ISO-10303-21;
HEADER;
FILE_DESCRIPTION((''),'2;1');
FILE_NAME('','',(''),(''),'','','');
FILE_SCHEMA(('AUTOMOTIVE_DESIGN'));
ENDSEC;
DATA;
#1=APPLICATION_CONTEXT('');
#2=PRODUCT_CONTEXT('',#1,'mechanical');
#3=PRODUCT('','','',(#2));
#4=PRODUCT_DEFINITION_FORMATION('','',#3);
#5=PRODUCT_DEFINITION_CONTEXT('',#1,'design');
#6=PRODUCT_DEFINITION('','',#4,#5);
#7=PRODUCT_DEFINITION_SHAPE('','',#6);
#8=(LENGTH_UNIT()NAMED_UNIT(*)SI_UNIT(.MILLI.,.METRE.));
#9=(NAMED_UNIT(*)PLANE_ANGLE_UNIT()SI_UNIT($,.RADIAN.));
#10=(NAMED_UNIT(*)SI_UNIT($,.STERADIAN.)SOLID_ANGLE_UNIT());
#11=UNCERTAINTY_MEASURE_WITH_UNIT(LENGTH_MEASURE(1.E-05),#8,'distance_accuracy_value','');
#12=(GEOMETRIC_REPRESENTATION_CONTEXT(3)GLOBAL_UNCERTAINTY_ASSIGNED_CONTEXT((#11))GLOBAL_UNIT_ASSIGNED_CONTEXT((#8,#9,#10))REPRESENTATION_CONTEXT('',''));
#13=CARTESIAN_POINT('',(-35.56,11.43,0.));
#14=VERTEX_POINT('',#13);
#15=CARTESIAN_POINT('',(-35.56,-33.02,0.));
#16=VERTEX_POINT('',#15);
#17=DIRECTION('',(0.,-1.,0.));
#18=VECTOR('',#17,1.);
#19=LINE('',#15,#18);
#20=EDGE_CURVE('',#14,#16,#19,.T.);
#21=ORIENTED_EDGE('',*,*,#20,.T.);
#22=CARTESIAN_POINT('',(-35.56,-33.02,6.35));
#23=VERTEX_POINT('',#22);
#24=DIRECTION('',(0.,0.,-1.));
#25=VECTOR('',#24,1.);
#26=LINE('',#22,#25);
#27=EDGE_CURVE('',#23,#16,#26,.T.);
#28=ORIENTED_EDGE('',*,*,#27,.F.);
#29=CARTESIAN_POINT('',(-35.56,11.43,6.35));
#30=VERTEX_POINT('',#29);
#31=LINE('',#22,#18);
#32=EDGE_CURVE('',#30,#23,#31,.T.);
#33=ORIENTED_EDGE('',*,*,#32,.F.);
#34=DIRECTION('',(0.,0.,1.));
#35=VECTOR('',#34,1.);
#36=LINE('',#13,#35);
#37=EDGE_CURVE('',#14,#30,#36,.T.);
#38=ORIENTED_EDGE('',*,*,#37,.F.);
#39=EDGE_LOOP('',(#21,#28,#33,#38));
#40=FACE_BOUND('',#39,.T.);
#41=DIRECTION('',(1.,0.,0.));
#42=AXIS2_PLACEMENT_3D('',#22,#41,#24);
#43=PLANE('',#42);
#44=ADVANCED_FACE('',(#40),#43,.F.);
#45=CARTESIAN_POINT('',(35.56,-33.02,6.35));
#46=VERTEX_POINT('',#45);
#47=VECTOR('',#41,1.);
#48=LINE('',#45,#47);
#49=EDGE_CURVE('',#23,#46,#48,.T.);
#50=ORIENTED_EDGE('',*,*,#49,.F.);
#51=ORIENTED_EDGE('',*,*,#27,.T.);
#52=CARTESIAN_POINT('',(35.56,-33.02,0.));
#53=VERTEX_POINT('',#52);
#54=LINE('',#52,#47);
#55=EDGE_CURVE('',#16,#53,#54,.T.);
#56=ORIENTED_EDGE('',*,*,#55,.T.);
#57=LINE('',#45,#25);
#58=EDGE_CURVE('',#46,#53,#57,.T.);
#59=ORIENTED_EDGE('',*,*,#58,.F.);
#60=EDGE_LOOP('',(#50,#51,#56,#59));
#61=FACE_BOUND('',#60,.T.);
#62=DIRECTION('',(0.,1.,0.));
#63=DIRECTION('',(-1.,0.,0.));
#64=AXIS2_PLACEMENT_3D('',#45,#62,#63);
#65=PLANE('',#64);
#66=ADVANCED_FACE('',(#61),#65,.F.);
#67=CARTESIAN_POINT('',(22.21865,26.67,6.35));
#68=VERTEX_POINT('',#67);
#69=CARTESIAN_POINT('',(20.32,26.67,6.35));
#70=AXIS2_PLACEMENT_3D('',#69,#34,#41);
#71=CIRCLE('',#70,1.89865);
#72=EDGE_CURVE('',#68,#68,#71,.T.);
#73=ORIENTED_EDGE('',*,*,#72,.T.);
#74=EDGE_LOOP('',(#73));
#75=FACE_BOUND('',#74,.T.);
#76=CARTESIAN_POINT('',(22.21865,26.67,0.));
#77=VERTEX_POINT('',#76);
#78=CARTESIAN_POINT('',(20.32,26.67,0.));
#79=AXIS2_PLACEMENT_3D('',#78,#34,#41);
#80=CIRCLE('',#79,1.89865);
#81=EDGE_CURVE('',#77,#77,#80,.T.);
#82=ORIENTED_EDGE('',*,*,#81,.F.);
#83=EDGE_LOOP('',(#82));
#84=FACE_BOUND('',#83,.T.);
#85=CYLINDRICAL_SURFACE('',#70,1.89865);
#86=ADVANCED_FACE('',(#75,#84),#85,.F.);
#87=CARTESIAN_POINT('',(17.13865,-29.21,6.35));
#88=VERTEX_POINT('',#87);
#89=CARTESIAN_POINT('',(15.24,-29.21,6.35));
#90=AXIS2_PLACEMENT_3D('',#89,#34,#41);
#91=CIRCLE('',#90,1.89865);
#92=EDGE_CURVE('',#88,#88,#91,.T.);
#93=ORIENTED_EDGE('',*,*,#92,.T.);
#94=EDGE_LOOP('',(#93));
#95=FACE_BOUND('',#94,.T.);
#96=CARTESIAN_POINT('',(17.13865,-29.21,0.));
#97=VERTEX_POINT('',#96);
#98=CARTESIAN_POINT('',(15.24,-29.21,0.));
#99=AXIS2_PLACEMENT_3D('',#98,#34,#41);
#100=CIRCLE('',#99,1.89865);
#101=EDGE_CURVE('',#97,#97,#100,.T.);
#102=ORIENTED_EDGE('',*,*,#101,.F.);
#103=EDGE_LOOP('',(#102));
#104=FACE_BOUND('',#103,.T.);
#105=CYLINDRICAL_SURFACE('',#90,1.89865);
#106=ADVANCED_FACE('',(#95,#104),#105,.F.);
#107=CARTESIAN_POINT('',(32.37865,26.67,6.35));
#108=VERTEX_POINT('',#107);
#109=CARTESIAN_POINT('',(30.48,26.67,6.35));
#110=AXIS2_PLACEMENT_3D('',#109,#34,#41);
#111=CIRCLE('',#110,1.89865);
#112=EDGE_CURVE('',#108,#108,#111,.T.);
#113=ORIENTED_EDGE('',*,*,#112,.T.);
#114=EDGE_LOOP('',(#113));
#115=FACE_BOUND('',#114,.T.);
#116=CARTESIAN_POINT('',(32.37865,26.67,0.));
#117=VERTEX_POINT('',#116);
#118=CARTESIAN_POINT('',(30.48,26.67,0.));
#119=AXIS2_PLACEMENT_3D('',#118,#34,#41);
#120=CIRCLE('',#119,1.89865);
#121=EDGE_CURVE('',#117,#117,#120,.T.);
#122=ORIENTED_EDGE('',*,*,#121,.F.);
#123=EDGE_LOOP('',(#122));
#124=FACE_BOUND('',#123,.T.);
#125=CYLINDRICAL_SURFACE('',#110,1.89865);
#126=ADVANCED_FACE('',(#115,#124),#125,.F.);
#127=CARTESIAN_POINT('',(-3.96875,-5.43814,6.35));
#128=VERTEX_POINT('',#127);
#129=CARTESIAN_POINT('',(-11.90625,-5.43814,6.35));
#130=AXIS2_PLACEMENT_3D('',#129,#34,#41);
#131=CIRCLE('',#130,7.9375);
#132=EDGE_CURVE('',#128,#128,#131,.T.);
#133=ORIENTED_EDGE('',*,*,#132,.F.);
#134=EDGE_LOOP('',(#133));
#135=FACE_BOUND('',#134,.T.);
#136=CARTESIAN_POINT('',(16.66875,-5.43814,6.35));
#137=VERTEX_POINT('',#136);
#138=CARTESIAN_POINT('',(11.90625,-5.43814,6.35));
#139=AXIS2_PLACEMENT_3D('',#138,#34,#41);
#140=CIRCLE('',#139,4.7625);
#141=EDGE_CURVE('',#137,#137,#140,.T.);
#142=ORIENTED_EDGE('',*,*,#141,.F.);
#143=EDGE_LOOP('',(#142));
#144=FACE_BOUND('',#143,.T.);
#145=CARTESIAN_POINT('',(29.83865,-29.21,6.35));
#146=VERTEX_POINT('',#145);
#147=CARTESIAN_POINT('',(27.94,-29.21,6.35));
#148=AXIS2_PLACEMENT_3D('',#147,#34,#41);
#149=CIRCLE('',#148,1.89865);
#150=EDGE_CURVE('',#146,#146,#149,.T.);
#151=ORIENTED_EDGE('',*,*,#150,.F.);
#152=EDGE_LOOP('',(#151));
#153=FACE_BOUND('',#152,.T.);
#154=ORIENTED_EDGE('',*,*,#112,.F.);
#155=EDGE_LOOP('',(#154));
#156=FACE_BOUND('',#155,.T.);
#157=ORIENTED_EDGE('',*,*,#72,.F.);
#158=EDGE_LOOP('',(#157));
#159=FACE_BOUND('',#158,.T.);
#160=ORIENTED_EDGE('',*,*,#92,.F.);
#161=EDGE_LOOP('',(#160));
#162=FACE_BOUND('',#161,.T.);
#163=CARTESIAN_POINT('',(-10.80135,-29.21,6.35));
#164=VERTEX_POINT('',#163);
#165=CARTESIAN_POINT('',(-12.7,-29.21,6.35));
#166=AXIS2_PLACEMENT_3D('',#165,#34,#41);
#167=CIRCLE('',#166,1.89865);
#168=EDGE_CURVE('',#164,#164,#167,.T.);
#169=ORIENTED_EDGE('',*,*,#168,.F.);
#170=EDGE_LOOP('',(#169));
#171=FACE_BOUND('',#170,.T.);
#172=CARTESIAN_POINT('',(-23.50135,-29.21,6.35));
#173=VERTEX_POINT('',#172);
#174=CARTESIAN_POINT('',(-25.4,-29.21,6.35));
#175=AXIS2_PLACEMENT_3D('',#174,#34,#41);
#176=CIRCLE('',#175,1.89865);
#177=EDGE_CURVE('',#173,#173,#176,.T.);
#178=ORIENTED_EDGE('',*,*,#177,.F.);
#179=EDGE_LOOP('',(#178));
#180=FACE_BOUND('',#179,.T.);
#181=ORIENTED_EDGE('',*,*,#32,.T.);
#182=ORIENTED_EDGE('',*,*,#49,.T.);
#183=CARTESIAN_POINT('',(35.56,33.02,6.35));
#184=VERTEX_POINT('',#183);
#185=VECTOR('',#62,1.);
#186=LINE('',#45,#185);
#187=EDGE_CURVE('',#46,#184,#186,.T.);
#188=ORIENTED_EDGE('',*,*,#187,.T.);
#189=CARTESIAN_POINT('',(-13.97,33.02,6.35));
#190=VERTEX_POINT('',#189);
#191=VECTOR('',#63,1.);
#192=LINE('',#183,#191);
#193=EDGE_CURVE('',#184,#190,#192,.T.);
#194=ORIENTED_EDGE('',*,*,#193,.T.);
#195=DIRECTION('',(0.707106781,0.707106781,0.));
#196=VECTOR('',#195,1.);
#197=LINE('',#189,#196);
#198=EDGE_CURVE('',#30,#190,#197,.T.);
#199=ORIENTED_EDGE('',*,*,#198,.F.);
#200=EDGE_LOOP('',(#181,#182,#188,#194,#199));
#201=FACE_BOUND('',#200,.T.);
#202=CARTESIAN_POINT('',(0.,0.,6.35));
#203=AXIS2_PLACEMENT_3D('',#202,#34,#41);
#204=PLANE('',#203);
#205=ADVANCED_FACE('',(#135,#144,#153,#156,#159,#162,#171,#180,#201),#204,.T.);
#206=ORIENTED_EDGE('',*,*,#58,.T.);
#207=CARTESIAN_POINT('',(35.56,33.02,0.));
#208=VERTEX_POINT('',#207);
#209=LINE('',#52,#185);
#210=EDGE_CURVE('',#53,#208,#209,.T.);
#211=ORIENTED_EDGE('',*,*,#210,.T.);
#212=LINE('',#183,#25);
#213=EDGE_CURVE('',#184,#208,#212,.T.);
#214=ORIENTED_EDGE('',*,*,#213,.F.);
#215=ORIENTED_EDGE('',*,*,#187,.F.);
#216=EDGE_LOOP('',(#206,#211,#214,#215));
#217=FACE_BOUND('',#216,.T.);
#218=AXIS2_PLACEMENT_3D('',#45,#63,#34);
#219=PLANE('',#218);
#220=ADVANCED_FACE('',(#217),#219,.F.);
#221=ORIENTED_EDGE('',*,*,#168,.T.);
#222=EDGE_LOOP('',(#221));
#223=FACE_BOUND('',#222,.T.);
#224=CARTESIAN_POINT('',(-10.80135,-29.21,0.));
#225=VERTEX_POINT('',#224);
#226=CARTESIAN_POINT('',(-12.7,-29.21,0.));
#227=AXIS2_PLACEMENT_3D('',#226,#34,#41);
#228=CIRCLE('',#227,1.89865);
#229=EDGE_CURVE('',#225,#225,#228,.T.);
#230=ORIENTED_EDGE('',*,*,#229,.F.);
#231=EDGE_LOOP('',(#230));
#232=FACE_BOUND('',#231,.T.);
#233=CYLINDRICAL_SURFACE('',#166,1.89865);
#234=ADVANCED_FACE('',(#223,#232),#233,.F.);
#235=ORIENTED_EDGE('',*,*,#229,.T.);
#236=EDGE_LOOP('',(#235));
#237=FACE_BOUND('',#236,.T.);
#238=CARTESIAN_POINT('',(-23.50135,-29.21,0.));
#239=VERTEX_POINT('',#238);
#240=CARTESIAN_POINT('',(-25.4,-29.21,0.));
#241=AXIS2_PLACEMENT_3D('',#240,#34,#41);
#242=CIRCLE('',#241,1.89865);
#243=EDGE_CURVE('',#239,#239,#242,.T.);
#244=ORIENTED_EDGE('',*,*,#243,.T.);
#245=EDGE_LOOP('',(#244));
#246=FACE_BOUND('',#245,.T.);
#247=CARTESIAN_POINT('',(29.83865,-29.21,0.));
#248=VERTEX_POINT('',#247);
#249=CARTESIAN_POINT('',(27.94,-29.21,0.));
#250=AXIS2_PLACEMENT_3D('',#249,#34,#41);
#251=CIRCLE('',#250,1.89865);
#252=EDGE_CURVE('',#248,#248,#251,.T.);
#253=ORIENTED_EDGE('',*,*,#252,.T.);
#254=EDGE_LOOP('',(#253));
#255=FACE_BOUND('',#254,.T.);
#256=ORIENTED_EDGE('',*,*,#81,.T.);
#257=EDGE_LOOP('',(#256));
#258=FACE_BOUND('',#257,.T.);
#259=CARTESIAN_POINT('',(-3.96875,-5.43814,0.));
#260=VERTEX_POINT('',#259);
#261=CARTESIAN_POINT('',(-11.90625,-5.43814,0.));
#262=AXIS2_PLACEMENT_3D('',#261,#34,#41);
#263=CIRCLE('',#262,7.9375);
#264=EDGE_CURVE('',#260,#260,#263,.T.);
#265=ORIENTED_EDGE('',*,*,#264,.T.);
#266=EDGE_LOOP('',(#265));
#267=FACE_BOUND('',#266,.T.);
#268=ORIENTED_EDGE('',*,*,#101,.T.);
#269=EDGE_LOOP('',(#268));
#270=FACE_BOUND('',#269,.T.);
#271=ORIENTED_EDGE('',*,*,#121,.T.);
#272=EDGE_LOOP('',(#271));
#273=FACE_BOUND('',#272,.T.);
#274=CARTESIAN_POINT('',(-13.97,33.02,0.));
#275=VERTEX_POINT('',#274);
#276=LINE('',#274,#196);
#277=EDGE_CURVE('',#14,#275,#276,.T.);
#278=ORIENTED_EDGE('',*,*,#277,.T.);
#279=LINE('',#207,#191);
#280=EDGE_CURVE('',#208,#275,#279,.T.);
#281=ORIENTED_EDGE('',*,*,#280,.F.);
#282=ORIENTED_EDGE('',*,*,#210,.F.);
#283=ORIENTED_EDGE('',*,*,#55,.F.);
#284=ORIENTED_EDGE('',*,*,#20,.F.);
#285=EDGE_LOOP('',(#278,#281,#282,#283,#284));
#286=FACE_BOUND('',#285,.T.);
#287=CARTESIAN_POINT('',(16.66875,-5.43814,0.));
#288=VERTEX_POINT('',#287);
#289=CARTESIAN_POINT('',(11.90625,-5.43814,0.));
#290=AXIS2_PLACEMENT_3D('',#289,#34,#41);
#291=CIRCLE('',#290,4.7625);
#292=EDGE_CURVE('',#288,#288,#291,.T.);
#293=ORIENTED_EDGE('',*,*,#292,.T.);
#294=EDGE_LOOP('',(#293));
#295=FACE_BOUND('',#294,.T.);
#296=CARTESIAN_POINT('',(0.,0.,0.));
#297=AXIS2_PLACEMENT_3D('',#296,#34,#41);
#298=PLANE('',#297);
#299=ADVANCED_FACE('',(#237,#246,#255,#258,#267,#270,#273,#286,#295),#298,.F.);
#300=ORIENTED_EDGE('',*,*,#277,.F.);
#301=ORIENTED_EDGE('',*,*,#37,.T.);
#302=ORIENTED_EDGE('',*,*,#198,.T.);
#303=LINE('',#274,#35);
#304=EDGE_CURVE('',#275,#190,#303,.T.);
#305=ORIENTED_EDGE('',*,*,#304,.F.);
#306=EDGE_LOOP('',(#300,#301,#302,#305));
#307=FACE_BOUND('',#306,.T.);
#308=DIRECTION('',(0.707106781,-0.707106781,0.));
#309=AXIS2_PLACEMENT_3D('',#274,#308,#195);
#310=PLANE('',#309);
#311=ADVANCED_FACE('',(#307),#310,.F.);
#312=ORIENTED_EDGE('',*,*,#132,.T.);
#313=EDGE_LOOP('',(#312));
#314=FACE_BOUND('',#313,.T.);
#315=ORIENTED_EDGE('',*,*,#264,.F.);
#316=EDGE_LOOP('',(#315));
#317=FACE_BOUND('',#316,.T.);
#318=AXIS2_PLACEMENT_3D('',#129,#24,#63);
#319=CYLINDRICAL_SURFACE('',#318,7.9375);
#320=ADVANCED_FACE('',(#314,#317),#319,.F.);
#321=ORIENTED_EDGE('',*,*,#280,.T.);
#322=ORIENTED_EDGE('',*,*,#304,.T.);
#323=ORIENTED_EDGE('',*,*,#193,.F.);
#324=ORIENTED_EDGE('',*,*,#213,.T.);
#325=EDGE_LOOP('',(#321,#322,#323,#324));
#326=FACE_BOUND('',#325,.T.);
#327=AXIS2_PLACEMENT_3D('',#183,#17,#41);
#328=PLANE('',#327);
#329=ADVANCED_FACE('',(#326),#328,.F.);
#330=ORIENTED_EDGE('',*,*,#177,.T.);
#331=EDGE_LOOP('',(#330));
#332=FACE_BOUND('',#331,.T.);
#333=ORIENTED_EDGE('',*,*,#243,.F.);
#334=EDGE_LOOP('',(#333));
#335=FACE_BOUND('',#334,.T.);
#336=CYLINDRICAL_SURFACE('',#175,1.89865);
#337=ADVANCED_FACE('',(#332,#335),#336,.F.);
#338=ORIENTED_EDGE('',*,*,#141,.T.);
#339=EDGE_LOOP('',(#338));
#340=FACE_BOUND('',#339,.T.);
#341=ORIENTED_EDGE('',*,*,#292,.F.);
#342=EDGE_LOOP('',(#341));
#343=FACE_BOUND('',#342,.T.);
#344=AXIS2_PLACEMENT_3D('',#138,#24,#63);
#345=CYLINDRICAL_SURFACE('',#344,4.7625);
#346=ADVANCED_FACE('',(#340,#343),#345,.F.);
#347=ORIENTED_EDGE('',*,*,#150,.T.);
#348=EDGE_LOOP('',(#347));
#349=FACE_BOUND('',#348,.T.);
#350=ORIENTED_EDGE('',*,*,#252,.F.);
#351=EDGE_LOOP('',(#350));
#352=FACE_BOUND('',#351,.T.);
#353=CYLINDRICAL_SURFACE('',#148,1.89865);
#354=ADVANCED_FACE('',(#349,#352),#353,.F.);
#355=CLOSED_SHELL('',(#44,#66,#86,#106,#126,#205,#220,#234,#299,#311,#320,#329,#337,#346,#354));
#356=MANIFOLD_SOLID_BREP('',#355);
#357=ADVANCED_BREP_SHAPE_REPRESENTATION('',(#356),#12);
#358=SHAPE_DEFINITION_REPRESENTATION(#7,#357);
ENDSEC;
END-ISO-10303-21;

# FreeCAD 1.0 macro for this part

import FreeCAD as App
import Part
import Sketcher
Q = App.Units.Quantity

doc = App.newDocument("Part")
params = doc.addObject("Spreadsheet::Sheet", "Params")
for row, (alias, value) in enumerate([
    ("sketch1_diameter", "0.625 in"),
    ("sketch1_diameter2", "0.375 in"),
    ("sketch1_width", "2.8 in"),
    ("sketch1_height", "2.6 in"),
    ("pad1_length", "0.25 in"),
    ("hole_diameter", "0.1495 in"),
    ("sketch3_width", "0.85 in"),
    ("hole2_diameter", "0.1495 in"),
], start=1):
    params.set(f"A{row}", alias)
    params.set(f"B{row}", "=" + value)
    params.setAlias(f"B{row}", alias)

body = doc.addObject("PartDesign::Body", "Body")

# Sketch on XY plane
sketch1 = body.newObject("Sketcher::SketchObject", "Sketch")
sketch1.AttachmentSupport = (doc.getObject("XY_Plane"), [""])
sketch1.MapMode = "FlatFace"
sketch1.addGeometry(Part.LineSegment(App.Vector(-35.6, 33, 0), App.Vector(-35.6, -33, 0)), False)
sketch1.addGeometry(Part.LineSegment(App.Vector(-35.6, -33, 0), App.Vector(35.6, -33, 0)), False)
sketch1.addGeometry(Part.LineSegment(App.Vector(35.6, -33, 0), App.Vector(35.6, 33, 0)), False)
sketch1.addGeometry(Part.LineSegment(App.Vector(35.6, 33, 0), App.Vector(-35.6, 33, 0)), False)
sketch1.addGeometry(Part.Circle(App.Vector(-11.9, -5.4, 0), App.Vector(0, 0, 1), 7.9), False)
sketch1.addGeometry(Part.Circle(App.Vector(11.9, -5.4, 0), App.Vector(0, 0, 1), 4.8), False)
sketch1.addConstraint(Sketcher.Constraint("Coincident", 0, 2, 1, 1))
sketch1.addConstraint(Sketcher.Constraint("Coincident", 1, 2, 2, 1))
sketch1.addConstraint(Sketcher.Constraint("Coincident", 2, 2, 3, 1))
sketch1.addConstraint(Sketcher.Constraint("Coincident", 3, 2, 0, 1))
sketch1.addConstraint(Sketcher.Constraint("Vertical", 0))
sketch1.addConstraint(Sketcher.Constraint("Horizontal", 1))
sketch1.addConstraint(Sketcher.Constraint("Vertical", 2))
sketch1.addConstraint(Sketcher.Constraint("Horizontal", 3))
sketch1.addConstraint(Sketcher.Constraint("Symmetric", 0, 2, 2, 2, -1, 1))
sketch1.addConstraint(Sketcher.Constraint("Symmetric", 4, 3, 5, 3, -2))
sketch1.addConstraint(Sketcher.Constraint("Diameter", 4, Q("0.625 in")))
sketch1.addConstraint(Sketcher.Constraint("Diameter", 5, Q("0.375 in")))
sketch1.addConstraint(Sketcher.Constraint("DistanceX", 1, 1, 1, 2, Q("2.8 in")))
sketch1.addConstraint(Sketcher.Constraint("DistanceY", 0, 2, 0, 1, Q("2.6 in")))
sketch1.addConstraint(Sketcher.Constraint("DistanceX", 4, 3, -1, 1, Q("0.46875 in")))
sketch1.addConstraint(Sketcher.Constraint("DistanceY", 4, 3, -1, 1, Q("0.2141 in")))
sketch1.setExpression("Constraints[10]", "Params.sketch1_diameter")
sketch1.setExpression("Constraints[11]", "Params.sketch1_diameter2")
sketch1.setExpression("Constraints[12]", "Params.sketch1_width")
sketch1.setExpression("Constraints[13]", "Params.sketch1_height")
pad1 = body.newObject("PartDesign::Pad", "Pad")
pad1.Profile = sketch1
pad1.setExpression("Length", "Params.pad1_length")

# Sketch on XY plane
sketch2 = body.newObject("Sketcher::SketchObject", "Sketch001")
sketch2.AttachmentSupport = (doc.getObject("XY_Plane"), [""])
sketch2.MapMode = "FlatFace"
sketch2.AttachmentOffset = App.Placement(App.Vector(0, 0, 0.25 * 25.4), App.Rotation())
sketch2.addGeometry(Part.Circle(App.Vector(-25.4, -29.2, 0), App.Vector(0, 0, 1), 1.9), False)
sketch2.addGeometry(Part.Circle(App.Vector(-12.7, -29.2, 0), App.Vector(0, 0, 1), 1.9), False)
sketch2.addGeometry(Part.Circle(App.Vector(15.2, -29.2, 0), App.Vector(0, 0, 1), 1.9), False)
sketch2.addGeometry(Part.Circle(App.Vector(27.9, -29.2, 0), App.Vector(0, 0, 1), 1.9), False)
sketch2.addConstraint(Sketcher.Constraint("Equal", 0, 1))
sketch2.addConstraint(Sketcher.Constraint("Equal", 1, 2))
sketch2.addConstraint(Sketcher.Constraint("Equal", 2, 3))
sketch2.addConstraint(Sketcher.Constraint("Horizontal", 0, 3, 1, 3))
sketch2.addConstraint(Sketcher.Constraint("Horizontal", 1, 3, 2, 3))
sketch2.addConstraint(Sketcher.Constraint("Horizontal", 2, 3, 3, 3))
sketch2.addConstraint(Sketcher.Constraint("DistanceX", 0, 3, -1, 1, Q("1 in")))
sketch2.addConstraint(Sketcher.Constraint("Diameter", 0, Q("0.1495 in")))
sketch2.addConstraint(Sketcher.Constraint("DistanceX", 1, 3, -1, 1, Q("0.5 in")))
sketch2.addConstraint(Sketcher.Constraint("DistanceX", -1, 1, 2, 3, Q("0.6 in")))
sketch2.addConstraint(Sketcher.Constraint("DistanceX", -1, 1, 3, 3, Q("1.1 in")))
sketch2.addConstraint(Sketcher.Constraint("DistanceY", 0, 3, -1, 1, Q("1.15 in")))
doc.recompute()
hole = body.newObject("PartDesign::Hole", "Hole")
hole.Profile = sketch2
hole.ThreadType = "None"
hole.setExpression("Diameter", "Params.hole_diameter")
hole.DepthType = "ThroughAll"

# Sketch on XY plane
sketch3 = body.newObject("Sketcher::SketchObject", "Sketch002")
sketch3.AttachmentSupport = (doc.getObject("XY_Plane"), [""])
sketch3.MapMode = "FlatFace"
sketch3.AttachmentOffset = App.Placement(App.Vector(0, 0, 0.25 * 25.4), App.Rotation())
sketch3.addGeometry(Part.LineSegment(App.Vector(-36, 33, 0), App.Vector(-36, 11, 0)), False)
sketch3.addGeometry(Part.LineSegment(App.Vector(-36, 11, 0), App.Vector(-14, 33, 0)), False)
sketch3.addGeometry(Part.LineSegment(App.Vector(-14, 33, 0), App.Vector(-36, 33, 0)), False)
sketch3.addConstraint(Sketcher.Constraint("Coincident", 0, 2, 1, 1))
sketch3.addConstraint(Sketcher.Constraint("Coincident", 1, 2, 2, 1))
sketch3.addConstraint(Sketcher.Constraint("Coincident", 2, 2, 0, 1))
sketch3.addConstraint(Sketcher.Constraint("Vertical", 0))
sketch3.addConstraint(Sketcher.Constraint("Horizontal", 2))
sketch3.addConstraint(Sketcher.Constraint("Equal", 2, 0))
sketch3.addConstraint(Sketcher.Constraint("DistanceX", 2, 2, 2, 1, Q("0.85 in")))
sketch3.addConstraint(Sketcher.Constraint("DistanceX", 0, 2, -1, 1, Q("1.4 in")))
sketch3.addConstraint(Sketcher.Constraint("DistanceY", -1, 1, 1, 2, Q("1.3 in")))
sketch3.setExpression("Constraints[6]", "Params.sketch3_width")
pocket1 = body.newObject("PartDesign::Pocket", "Pocket")
pocket1.Profile = sketch3
pocket1.Type = "ThroughAll"

# Sketch on XY plane
sketch4 = body.newObject("Sketcher::SketchObject", "Sketch003")
sketch4.AttachmentSupport = (doc.getObject("XY_Plane"), [""])
sketch4.MapMode = "FlatFace"
sketch4.AttachmentOffset = App.Placement(App.Vector(0, 0, 0.25 * 25.4), App.Rotation())
sketch4.addGeometry(Part.Circle(App.Vector(20.3, 26.7, 0), App.Vector(0, 0, 1), 1.9), False)
sketch4.addGeometry(Part.Circle(App.Vector(30.5, 26.7, 0), App.Vector(0, 0, 1), 1.9), False)
sketch4.addConstraint(Sketcher.Constraint("Equal", 0, 1))
sketch4.addConstraint(Sketcher.Constraint("Horizontal", 0, 3, 1, 3))
sketch4.addConstraint(Sketcher.Constraint("Diameter", 0, Q("0.1495 in")))
sketch4.addConstraint(Sketcher.Constraint("DistanceX", -1, 1, 0, 3, Q("0.8 in")))
sketch4.addConstraint(Sketcher.Constraint("DistanceX", -1, 1, 1, 3, Q("1.2 in")))
sketch4.addConstraint(Sketcher.Constraint("DistanceY", -1, 1, 0, 3, Q("1.05 in")))
doc.recompute()
hole2 = body.newObject("PartDesign::Hole", "Hole001")
hole2.Profile = sketch4
hole2.ThreadType = "None"
hole2.setExpression("Diameter", "Params.hole2_diameter")
hole2.DepthType = "ThroughAll"

doc.recompute()
